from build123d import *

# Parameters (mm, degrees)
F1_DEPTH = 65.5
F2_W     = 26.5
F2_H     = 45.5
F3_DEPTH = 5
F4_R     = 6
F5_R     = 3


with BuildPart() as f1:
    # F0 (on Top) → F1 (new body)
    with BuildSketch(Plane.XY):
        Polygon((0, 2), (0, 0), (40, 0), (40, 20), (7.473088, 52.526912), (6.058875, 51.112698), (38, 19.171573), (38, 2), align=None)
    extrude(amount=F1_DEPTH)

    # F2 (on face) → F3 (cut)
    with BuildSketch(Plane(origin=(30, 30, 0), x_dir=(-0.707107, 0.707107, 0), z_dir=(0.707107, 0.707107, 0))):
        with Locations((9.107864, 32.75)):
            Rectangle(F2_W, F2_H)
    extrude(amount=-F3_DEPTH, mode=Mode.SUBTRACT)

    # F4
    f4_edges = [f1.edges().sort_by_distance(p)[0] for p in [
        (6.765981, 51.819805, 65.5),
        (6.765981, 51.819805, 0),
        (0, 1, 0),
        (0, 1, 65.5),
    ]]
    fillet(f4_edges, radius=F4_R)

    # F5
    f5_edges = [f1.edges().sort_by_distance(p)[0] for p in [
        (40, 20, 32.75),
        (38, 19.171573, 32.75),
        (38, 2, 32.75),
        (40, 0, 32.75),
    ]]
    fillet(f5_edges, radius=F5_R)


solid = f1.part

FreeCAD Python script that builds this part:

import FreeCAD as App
import Part
import Sketcher
from FreeCAD import Vector
Q = App.Units.Quantity


def edges_at(feature, points):
    """Names of the edges that pass closest to the given points."""
    edges = feature.Shape.Edges
    near = lambda p: min(range(len(edges)), key=lambda i: edges[i].distToShape(Part.Vertex(*p))[0])
    return sorted({f"Edge{near(p) + 1}" for p in points})

doc = App.newDocument("Part")
body = doc.addObject("PartDesign::Body", "Body")

# Sketch on XY plane
sketch1 = doc.addObject("Sketcher::SketchObject", "Sketch")
body.addObject(sketch1)
sketch1.AttachmentSupport = (doc.XY_Plane, [""])
sketch1.MapMode = "FlatFace"
sketch1.addGeometry(Part.LineSegment(Vector(0, 2, 0), Vector(0, 0, 0)), False)
sketch1.addGeometry(Part.LineSegment(Vector(0, 0, 0), Vector(40, 0, 0)), False)
sketch1.addGeometry(Part.LineSegment(Vector(40, 0, 0), Vector(40, 20, 0)), False)
sketch1.addGeometry(Part.LineSegment(Vector(40, 20, 0), Vector(7.5, 52.5, 0)), False)
sketch1.addGeometry(Part.LineSegment(Vector(7.5, 52.5, 0), Vector(6.1, 51.1, 0)), False)
sketch1.addGeometry(Part.LineSegment(Vector(6.1, 51.1, 0), Vector(38, 19.2, 0)), False)
sketch1.addGeometry(Part.LineSegment(Vector(38, 19.2, 0), Vector(38, 2, 0)), False)
sketch1.addGeometry(Part.LineSegment(Vector(38, 2, 0), Vector(0, 2, 0)), False)
sketch1.addConstraint(Sketcher.Constraint("Coincident", 0, 2, 1, 1))
sketch1.addConstraint(Sketcher.Constraint("Coincident", 1, 2, 2, 1))
sketch1.addConstraint(Sketcher.Constraint("Coincident", 2, 2, 3, 1))
sketch1.addConstraint(Sketcher.Constraint("Coincident", 3, 2, 4, 1))
sketch1.addConstraint(Sketcher.Constraint("Coincident", 4, 2, 5, 1))
sketch1.addConstraint(Sketcher.Constraint("Coincident", 5, 2, 6, 1))
sketch1.addConstraint(Sketcher.Constraint("Coincident", 6, 2, 7, 1))
sketch1.addConstraint(Sketcher.Constraint("Coincident", 7, 2, 0, 1))
sketch1.addConstraint(Sketcher.Constraint("Vertical", 0))
sketch1.addConstraint(Sketcher.Constraint("Horizontal", 1))
sketch1.addConstraint(Sketcher.Constraint("Vertical", 2))
sketch1.addConstraint(Sketcher.Constraint("Vertical", 6))
sketch1.addConstraint(Sketcher.Constraint("Horizontal", 7))
sketch1.addConstraint(Sketcher.Constraint("Coincident", 0, 2, -1, 1))
sketch1.addConstraint(Sketcher.Constraint("Perpendicular", 3, 4))
sketch1.addConstraint(Sketcher.Constraint("Perpendicular", 4, 5))
sketch1.addConstraint(Sketcher.Constraint("DistanceX", 1, 1, 1, 2, 40.0))
sketch1.addConstraint(Sketcher.Constraint("DistanceX", 7, 2, 7, 1, 38.0))
sketch1.addConstraint(Sketcher.Constraint("DistanceY", 0, 2, 0, 1, 2.0))
sketch1.addConstraint(Sketcher.Constraint("DistanceY", 2, 1, 2, 2, 20.0))
sketch1.addConstraint(Sketcher.Constraint("Angle", 3, Q("135 deg")))
sketch1.addConstraint(Sketcher.Constraint("Distance", 3, 46.0))
sketch1.addConstraint(Sketcher.Constraint("Distance", 4, 2.0))
pad1 = doc.addObject("PartDesign::Pad", "Pad")
body.addObject(pad1)
pad1.Profile = sketch1
pad1.Length = 65.5

# Sketch on an angled plane
sketch2 = doc.addObject("Sketcher::SketchObject", "Sketch001")
body.addObject(sketch2)
sketch2.Placement = App.Placement(Vector(30, 30, 0), App.Rotation(Vector(-0.707106781, 0.707106781, 0), Vector(0, 0, 0.999999999), Vector(0.707106781, 0.707106781, 0), "ZXY"))
sketch2.addGeometry(Part.LineSegment(Vector(-4, 55, 0), Vector(-4, 10, 0)), False)
sketch2.addGeometry(Part.LineSegment(Vector(-4, 10, 0), Vector(22, 10, 0)), False)
sketch2.addGeometry(Part.LineSegment(Vector(22, 10, 0), Vector(22, 55, 0)), False)
sketch2.addGeometry(Part.LineSegment(Vector(22, 55, 0), Vector(-4, 55, 0)), False)
sketch2.addConstraint(Sketcher.Constraint("Coincident", 0, 2, 1, 1))
sketch2.addConstraint(Sketcher.Constraint("Coincident", 1, 2, 2, 1))
sketch2.addConstraint(Sketcher.Constraint("Coincident", 2, 2, 3, 1))
sketch2.addConstraint(Sketcher.Constraint("Coincident", 3, 2, 0, 1))
sketch2.addConstraint(Sketcher.Constraint("Vertical", 0))
sketch2.addConstraint(Sketcher.Constraint("Horizontal", 1))
sketch2.addConstraint(Sketcher.Constraint("Vertical", 2))
sketch2.addConstraint(Sketcher.Constraint("Horizontal", 3))
sketch2.addConstraint(Sketcher.Constraint("DistanceX", 1, 1, 1, 2, 26.5))
sketch2.addConstraint(Sketcher.Constraint("DistanceY", 0, 2, 0, 1, 45.5))
sketch2.addConstraint(Sketcher.Constraint("DistanceY", -1, 1, 0, 2, 10.0))
sketch2.addConstraint(Sketcher.Constraint("DistanceX", 0, 2, -1, 1, 4.142136))
pocket1 = doc.addObject("PartDesign::Pocket", "Pocket")
body.addObject(pocket1)
pocket1.Profile = sketch2
pocket1.Length = 5
doc.recompute()

fillet = doc.addObject("PartDesign::Fillet", "Fillet")
body.addObject(fillet)
fillet.Base = (pocket1, edges_at(pocket1, [
    (6.766, 51.82, 65.5),
    (6.766, 51.82, 0),
    (0, 1, 0),
    (0, 1, 65.5),
]))
fillet.Radius = 6
doc.recompute()

fillet2 = doc.addObject("PartDesign::Fillet", "Fillet001")
body.addObject(fillet2)
fillet2.Base = (fillet, edges_at(fillet, [
    (40, 20, 32.75),
    (38, 19.172, 32.75),
    (38, 2, 32.75),
    (40, 0, 32.75),
]))
fillet2.Radius = 3

doc.recompute()
